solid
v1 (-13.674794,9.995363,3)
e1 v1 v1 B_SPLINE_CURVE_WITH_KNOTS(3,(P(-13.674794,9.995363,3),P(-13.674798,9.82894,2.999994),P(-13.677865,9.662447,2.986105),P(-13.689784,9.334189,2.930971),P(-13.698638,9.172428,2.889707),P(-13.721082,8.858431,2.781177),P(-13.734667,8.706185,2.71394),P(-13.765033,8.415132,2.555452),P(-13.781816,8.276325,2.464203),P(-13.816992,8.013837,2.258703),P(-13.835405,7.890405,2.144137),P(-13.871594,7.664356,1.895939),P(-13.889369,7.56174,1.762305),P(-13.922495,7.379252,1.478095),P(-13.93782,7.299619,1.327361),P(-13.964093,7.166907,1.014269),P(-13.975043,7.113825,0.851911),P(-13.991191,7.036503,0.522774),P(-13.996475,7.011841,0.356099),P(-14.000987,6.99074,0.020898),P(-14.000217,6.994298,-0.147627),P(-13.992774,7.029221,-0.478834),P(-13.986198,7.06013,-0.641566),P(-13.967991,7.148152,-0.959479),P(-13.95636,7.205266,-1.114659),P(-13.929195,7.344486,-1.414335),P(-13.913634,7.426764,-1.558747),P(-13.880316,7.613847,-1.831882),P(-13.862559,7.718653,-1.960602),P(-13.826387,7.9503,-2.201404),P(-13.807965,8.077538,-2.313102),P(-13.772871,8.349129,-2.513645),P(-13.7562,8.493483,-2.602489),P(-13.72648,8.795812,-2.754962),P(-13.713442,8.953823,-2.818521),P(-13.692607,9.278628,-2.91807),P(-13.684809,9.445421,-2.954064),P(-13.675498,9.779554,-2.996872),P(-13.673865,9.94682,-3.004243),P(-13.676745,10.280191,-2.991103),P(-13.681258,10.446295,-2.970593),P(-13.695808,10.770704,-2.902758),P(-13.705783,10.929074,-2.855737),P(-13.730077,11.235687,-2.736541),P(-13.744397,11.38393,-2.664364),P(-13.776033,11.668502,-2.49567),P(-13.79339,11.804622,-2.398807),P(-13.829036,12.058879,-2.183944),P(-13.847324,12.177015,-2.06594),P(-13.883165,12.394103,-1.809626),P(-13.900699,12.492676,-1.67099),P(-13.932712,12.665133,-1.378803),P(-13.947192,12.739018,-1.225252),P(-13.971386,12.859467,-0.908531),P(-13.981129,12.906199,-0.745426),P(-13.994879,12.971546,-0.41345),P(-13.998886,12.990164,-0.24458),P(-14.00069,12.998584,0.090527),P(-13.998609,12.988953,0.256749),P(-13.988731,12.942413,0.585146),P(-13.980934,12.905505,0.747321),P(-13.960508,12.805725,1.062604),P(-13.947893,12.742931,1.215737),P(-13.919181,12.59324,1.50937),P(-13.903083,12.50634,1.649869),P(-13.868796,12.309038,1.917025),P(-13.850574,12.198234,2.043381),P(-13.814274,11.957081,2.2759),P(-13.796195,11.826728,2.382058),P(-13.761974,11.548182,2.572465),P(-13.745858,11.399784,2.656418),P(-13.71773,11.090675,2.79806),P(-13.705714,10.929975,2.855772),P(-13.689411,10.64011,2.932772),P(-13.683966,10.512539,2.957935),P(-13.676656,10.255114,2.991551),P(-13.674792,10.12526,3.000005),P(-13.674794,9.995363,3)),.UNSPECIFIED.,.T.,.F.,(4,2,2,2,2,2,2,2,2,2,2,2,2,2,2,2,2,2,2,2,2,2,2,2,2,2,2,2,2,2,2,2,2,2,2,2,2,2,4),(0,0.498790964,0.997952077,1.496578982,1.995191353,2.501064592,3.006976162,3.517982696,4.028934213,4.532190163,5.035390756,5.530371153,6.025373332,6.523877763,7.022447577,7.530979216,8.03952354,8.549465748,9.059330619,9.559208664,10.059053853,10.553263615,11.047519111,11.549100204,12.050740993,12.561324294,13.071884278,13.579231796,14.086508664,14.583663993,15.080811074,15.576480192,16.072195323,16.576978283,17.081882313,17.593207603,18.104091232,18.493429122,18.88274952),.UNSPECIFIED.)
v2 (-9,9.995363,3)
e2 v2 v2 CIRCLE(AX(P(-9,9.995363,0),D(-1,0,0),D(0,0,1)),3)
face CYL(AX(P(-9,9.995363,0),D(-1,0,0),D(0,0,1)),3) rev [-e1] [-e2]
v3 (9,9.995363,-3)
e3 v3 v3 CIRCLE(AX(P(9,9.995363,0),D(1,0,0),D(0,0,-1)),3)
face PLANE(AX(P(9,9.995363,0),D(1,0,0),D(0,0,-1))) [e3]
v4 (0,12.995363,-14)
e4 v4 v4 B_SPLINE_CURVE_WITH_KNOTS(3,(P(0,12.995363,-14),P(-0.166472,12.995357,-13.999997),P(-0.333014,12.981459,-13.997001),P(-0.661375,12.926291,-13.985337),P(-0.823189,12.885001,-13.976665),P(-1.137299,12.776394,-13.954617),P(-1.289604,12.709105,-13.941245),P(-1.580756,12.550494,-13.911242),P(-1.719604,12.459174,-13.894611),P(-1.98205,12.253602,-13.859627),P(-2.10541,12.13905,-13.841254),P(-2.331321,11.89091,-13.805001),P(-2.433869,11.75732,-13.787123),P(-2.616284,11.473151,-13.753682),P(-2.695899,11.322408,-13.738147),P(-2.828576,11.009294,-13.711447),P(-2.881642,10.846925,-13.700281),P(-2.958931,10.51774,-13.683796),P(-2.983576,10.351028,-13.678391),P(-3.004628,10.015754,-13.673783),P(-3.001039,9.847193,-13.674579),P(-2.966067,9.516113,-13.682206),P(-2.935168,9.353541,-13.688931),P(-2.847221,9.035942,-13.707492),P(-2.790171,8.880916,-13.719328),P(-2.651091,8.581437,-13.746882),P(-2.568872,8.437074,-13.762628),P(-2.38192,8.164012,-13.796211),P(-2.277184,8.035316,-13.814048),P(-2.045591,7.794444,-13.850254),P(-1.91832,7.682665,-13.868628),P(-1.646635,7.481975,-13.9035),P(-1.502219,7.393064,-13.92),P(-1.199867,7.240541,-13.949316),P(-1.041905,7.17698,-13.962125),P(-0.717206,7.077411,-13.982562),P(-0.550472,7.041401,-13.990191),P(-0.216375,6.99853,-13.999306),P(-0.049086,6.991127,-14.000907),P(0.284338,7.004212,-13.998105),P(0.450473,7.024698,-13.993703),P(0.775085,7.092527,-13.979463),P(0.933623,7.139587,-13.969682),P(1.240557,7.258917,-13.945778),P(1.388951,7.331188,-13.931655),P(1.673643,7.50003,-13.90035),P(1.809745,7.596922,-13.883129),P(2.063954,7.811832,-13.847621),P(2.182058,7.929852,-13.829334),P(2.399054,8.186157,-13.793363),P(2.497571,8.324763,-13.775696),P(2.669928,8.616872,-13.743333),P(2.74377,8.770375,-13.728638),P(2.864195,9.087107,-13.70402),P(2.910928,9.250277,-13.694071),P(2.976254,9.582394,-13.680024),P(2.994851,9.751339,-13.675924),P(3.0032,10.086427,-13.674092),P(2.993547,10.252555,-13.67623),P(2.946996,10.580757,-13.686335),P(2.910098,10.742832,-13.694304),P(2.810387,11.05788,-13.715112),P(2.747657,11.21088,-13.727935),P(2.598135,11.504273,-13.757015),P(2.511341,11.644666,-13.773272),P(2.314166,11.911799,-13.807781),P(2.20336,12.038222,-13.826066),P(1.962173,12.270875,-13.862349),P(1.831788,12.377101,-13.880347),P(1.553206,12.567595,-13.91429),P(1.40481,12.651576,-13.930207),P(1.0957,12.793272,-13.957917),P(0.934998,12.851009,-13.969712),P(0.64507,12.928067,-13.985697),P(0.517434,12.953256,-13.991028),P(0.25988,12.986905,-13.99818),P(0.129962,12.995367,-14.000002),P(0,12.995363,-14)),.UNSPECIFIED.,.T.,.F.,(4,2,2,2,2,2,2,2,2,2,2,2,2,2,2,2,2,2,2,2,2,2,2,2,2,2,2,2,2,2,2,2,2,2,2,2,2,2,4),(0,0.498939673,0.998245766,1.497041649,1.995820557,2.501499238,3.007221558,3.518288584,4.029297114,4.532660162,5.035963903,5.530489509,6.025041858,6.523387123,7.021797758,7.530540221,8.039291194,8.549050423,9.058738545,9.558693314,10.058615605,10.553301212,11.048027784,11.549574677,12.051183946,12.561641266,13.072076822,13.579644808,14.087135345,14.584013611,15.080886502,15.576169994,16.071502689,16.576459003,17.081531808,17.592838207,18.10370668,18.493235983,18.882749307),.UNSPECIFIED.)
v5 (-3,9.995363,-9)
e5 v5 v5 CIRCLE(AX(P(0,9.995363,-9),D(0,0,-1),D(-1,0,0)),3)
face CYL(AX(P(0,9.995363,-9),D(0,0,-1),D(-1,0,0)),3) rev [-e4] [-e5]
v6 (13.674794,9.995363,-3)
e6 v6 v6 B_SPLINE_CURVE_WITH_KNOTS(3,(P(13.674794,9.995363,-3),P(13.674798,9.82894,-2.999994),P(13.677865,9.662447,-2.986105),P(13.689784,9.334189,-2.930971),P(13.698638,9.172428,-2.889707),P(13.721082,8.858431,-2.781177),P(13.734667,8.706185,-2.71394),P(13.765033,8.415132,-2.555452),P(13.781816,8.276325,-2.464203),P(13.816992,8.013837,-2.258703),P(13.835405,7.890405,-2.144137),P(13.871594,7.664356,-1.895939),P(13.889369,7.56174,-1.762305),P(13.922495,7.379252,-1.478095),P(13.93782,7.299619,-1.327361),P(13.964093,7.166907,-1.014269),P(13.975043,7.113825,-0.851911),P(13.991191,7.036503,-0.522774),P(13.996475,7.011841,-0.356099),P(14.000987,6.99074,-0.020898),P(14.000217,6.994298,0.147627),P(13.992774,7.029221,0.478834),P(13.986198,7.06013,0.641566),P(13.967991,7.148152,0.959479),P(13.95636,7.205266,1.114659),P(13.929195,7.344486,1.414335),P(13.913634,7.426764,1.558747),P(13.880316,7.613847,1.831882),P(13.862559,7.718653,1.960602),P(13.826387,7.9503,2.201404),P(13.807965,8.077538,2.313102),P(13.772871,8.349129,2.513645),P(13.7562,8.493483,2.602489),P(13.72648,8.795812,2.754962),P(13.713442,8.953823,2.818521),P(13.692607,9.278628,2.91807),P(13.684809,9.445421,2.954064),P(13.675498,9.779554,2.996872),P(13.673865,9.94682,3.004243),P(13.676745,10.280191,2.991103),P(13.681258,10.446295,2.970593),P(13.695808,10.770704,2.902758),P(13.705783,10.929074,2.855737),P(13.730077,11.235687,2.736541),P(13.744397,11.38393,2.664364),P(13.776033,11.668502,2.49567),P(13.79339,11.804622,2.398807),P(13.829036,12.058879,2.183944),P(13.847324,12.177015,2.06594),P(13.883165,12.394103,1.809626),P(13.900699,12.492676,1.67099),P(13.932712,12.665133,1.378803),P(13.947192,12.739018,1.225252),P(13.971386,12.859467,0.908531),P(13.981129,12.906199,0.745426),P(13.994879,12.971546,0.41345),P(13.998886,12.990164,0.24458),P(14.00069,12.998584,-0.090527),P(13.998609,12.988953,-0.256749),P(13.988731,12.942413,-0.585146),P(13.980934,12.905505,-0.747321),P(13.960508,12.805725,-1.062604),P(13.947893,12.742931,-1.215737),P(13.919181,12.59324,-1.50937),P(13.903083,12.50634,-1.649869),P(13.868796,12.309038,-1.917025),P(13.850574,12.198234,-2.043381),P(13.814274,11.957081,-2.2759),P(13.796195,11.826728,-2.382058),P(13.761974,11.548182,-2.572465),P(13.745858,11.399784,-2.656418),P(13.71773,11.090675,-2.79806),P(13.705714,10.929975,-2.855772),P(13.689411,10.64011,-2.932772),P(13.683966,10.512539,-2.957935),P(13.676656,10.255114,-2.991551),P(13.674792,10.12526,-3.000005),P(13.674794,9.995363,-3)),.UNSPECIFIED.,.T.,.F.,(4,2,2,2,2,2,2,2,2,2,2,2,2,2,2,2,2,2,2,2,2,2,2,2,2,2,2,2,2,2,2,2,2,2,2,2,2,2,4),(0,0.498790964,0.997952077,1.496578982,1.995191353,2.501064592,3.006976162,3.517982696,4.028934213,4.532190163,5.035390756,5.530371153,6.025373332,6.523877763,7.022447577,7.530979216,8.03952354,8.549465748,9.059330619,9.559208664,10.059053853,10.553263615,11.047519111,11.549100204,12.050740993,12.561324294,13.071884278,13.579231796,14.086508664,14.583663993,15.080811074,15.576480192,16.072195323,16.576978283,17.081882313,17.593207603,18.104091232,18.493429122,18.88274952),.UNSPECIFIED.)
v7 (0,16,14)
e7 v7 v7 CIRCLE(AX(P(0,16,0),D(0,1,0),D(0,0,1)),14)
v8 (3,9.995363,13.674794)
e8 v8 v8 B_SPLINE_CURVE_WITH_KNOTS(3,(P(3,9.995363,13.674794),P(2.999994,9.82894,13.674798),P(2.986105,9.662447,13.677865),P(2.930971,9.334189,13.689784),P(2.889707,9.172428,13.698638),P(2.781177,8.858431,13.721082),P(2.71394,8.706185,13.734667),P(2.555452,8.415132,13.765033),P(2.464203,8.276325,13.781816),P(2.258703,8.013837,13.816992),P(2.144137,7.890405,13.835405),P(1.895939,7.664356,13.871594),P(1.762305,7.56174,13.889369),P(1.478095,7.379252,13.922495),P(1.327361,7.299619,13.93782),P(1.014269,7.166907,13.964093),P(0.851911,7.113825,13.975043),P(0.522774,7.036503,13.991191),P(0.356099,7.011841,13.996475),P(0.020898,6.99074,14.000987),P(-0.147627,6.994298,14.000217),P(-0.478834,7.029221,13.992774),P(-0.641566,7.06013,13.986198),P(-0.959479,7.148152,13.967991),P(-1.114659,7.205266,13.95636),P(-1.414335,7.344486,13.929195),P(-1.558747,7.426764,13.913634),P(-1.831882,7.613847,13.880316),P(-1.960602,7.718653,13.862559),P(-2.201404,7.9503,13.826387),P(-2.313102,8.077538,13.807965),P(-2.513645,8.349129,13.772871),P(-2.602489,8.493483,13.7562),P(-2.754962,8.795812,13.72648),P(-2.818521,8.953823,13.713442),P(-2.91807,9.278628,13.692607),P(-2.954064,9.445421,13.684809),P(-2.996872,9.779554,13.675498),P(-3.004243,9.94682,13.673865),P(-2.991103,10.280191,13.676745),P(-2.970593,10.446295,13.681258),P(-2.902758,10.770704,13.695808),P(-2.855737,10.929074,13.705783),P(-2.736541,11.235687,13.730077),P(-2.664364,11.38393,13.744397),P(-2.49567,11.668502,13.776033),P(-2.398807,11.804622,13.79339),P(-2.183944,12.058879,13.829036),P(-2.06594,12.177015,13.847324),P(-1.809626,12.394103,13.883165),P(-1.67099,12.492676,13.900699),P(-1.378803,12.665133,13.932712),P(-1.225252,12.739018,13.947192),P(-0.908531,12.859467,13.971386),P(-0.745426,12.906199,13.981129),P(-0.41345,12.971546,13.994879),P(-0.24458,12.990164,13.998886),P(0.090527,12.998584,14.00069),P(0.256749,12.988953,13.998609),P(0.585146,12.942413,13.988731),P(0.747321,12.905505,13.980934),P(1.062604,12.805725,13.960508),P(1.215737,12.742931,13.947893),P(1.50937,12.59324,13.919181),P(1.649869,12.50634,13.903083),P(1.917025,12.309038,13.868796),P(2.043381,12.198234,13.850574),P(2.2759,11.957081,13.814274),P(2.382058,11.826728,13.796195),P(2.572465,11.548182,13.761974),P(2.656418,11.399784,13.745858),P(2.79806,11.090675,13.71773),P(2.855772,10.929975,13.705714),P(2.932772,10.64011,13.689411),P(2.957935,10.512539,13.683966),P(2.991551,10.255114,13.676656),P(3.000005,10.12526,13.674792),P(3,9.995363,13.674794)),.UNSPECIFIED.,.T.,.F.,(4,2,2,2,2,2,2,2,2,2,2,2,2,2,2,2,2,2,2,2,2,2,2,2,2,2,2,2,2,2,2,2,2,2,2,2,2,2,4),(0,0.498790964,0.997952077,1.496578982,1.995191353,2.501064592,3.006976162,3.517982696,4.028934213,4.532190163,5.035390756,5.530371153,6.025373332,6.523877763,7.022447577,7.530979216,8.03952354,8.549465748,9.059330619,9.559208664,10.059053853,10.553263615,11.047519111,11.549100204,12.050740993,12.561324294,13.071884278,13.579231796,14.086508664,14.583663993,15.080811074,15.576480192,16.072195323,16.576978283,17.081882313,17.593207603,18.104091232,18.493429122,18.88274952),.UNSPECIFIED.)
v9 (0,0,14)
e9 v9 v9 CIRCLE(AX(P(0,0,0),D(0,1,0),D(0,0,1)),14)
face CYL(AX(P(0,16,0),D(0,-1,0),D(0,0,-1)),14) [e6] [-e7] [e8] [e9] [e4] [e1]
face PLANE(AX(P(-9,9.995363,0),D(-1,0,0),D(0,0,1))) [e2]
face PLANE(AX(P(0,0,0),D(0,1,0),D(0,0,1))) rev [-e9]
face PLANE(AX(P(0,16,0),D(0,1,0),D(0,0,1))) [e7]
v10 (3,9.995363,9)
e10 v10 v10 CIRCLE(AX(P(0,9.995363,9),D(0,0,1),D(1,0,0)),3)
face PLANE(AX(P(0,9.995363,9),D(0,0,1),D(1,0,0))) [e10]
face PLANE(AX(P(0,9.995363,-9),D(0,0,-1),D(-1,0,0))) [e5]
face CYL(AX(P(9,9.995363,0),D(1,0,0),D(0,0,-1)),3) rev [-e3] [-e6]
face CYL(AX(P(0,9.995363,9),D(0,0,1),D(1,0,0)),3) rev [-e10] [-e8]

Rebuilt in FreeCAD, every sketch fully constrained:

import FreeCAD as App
import Part
import Sketcher

doc = App.newDocument("Part")
params = doc.addObject("Spreadsheet::Sheet", "Params")
for row, (alias, value) in enumerate([
    ("sketch1_diameter", "28 mm"),
    ("pad1_length", "16 mm"),
    ("sketch2_diameter", "6 mm"),
    ("pocket1_length", "5 mm"),
], start=1):
    params.set(f"A{row}", alias)
    params.set(f"B{row}", "=" + value)
    params.setAlias(f"B{row}", alias)

body = doc.addObject("PartDesign::Body", "Body")

# Sketch on XZ plane
sketch1 = body.newObject("Sketcher::SketchObject", "Sketch")
sketch1.AttachmentSupport = (doc.getObject("XZ_Plane"), [""])
sketch1.MapMode = "FlatFace"
sketch1.addGeometry(Part.Circle(App.Vector(0, 0, 0), App.Vector(0, 0, 1), 14), False)
sketch1.addConstraint([
    Sketcher.Constraint("Coincident", 0, 3, -1, 1),
    Sketcher.Constraint("Diameter", 0, 28.0),
])
sketch1.setExpression("Constraints[1]", "Params.sketch1_diameter")
pad1 = body.newObject("PartDesign::Pad", "Pad")
pad1.Profile = sketch1
pad1.setExpression("Length", "Params.pad1_length")
pad1.Reversed = True

# Sketch on YZ plane
sketch2 = body.newObject("Sketcher::SketchObject", "Sketch001")
sketch2.AttachmentSupport = (doc.getObject("YZ_Plane"), [""])
sketch2.MapMode = "FlatFace"
sketch2.AttachmentOffset = App.Placement(App.Vector(0, 0, 14), App.Rotation())
sketch2.addGeometry(Part.Circle(App.Vector(10, 0, 0), App.Vector(0, 0, 1), 3), False)
sketch2.addConstraint([
    Sketcher.Constraint("PointOnObject", 0, 3, -1),
    Sketcher.Constraint("Diameter", 0, 6.0),
    Sketcher.Constraint("DistanceX", -1, 1, 0, 3, 9.995363),
])
sketch2.setExpression("Constraints[1]", "Params.sketch2_diameter")
pocket1 = body.newObject("PartDesign::Pocket", "Pocket")
pocket1.Profile = sketch2
pocket1.setExpression("Length", "Params.pocket1_length")
doc.recompute()

polarpattern = body.newObject("PartDesign::PolarPattern", "PolarPattern")
polarpattern.Originals = [pocket1]
polarpattern.Axis = (doc.getObject("Y_Axis"), [""])
polarpattern.Angle = 360
polarpattern.Occurrences = 4
body.Tip = polarpattern

doc.recompute()
